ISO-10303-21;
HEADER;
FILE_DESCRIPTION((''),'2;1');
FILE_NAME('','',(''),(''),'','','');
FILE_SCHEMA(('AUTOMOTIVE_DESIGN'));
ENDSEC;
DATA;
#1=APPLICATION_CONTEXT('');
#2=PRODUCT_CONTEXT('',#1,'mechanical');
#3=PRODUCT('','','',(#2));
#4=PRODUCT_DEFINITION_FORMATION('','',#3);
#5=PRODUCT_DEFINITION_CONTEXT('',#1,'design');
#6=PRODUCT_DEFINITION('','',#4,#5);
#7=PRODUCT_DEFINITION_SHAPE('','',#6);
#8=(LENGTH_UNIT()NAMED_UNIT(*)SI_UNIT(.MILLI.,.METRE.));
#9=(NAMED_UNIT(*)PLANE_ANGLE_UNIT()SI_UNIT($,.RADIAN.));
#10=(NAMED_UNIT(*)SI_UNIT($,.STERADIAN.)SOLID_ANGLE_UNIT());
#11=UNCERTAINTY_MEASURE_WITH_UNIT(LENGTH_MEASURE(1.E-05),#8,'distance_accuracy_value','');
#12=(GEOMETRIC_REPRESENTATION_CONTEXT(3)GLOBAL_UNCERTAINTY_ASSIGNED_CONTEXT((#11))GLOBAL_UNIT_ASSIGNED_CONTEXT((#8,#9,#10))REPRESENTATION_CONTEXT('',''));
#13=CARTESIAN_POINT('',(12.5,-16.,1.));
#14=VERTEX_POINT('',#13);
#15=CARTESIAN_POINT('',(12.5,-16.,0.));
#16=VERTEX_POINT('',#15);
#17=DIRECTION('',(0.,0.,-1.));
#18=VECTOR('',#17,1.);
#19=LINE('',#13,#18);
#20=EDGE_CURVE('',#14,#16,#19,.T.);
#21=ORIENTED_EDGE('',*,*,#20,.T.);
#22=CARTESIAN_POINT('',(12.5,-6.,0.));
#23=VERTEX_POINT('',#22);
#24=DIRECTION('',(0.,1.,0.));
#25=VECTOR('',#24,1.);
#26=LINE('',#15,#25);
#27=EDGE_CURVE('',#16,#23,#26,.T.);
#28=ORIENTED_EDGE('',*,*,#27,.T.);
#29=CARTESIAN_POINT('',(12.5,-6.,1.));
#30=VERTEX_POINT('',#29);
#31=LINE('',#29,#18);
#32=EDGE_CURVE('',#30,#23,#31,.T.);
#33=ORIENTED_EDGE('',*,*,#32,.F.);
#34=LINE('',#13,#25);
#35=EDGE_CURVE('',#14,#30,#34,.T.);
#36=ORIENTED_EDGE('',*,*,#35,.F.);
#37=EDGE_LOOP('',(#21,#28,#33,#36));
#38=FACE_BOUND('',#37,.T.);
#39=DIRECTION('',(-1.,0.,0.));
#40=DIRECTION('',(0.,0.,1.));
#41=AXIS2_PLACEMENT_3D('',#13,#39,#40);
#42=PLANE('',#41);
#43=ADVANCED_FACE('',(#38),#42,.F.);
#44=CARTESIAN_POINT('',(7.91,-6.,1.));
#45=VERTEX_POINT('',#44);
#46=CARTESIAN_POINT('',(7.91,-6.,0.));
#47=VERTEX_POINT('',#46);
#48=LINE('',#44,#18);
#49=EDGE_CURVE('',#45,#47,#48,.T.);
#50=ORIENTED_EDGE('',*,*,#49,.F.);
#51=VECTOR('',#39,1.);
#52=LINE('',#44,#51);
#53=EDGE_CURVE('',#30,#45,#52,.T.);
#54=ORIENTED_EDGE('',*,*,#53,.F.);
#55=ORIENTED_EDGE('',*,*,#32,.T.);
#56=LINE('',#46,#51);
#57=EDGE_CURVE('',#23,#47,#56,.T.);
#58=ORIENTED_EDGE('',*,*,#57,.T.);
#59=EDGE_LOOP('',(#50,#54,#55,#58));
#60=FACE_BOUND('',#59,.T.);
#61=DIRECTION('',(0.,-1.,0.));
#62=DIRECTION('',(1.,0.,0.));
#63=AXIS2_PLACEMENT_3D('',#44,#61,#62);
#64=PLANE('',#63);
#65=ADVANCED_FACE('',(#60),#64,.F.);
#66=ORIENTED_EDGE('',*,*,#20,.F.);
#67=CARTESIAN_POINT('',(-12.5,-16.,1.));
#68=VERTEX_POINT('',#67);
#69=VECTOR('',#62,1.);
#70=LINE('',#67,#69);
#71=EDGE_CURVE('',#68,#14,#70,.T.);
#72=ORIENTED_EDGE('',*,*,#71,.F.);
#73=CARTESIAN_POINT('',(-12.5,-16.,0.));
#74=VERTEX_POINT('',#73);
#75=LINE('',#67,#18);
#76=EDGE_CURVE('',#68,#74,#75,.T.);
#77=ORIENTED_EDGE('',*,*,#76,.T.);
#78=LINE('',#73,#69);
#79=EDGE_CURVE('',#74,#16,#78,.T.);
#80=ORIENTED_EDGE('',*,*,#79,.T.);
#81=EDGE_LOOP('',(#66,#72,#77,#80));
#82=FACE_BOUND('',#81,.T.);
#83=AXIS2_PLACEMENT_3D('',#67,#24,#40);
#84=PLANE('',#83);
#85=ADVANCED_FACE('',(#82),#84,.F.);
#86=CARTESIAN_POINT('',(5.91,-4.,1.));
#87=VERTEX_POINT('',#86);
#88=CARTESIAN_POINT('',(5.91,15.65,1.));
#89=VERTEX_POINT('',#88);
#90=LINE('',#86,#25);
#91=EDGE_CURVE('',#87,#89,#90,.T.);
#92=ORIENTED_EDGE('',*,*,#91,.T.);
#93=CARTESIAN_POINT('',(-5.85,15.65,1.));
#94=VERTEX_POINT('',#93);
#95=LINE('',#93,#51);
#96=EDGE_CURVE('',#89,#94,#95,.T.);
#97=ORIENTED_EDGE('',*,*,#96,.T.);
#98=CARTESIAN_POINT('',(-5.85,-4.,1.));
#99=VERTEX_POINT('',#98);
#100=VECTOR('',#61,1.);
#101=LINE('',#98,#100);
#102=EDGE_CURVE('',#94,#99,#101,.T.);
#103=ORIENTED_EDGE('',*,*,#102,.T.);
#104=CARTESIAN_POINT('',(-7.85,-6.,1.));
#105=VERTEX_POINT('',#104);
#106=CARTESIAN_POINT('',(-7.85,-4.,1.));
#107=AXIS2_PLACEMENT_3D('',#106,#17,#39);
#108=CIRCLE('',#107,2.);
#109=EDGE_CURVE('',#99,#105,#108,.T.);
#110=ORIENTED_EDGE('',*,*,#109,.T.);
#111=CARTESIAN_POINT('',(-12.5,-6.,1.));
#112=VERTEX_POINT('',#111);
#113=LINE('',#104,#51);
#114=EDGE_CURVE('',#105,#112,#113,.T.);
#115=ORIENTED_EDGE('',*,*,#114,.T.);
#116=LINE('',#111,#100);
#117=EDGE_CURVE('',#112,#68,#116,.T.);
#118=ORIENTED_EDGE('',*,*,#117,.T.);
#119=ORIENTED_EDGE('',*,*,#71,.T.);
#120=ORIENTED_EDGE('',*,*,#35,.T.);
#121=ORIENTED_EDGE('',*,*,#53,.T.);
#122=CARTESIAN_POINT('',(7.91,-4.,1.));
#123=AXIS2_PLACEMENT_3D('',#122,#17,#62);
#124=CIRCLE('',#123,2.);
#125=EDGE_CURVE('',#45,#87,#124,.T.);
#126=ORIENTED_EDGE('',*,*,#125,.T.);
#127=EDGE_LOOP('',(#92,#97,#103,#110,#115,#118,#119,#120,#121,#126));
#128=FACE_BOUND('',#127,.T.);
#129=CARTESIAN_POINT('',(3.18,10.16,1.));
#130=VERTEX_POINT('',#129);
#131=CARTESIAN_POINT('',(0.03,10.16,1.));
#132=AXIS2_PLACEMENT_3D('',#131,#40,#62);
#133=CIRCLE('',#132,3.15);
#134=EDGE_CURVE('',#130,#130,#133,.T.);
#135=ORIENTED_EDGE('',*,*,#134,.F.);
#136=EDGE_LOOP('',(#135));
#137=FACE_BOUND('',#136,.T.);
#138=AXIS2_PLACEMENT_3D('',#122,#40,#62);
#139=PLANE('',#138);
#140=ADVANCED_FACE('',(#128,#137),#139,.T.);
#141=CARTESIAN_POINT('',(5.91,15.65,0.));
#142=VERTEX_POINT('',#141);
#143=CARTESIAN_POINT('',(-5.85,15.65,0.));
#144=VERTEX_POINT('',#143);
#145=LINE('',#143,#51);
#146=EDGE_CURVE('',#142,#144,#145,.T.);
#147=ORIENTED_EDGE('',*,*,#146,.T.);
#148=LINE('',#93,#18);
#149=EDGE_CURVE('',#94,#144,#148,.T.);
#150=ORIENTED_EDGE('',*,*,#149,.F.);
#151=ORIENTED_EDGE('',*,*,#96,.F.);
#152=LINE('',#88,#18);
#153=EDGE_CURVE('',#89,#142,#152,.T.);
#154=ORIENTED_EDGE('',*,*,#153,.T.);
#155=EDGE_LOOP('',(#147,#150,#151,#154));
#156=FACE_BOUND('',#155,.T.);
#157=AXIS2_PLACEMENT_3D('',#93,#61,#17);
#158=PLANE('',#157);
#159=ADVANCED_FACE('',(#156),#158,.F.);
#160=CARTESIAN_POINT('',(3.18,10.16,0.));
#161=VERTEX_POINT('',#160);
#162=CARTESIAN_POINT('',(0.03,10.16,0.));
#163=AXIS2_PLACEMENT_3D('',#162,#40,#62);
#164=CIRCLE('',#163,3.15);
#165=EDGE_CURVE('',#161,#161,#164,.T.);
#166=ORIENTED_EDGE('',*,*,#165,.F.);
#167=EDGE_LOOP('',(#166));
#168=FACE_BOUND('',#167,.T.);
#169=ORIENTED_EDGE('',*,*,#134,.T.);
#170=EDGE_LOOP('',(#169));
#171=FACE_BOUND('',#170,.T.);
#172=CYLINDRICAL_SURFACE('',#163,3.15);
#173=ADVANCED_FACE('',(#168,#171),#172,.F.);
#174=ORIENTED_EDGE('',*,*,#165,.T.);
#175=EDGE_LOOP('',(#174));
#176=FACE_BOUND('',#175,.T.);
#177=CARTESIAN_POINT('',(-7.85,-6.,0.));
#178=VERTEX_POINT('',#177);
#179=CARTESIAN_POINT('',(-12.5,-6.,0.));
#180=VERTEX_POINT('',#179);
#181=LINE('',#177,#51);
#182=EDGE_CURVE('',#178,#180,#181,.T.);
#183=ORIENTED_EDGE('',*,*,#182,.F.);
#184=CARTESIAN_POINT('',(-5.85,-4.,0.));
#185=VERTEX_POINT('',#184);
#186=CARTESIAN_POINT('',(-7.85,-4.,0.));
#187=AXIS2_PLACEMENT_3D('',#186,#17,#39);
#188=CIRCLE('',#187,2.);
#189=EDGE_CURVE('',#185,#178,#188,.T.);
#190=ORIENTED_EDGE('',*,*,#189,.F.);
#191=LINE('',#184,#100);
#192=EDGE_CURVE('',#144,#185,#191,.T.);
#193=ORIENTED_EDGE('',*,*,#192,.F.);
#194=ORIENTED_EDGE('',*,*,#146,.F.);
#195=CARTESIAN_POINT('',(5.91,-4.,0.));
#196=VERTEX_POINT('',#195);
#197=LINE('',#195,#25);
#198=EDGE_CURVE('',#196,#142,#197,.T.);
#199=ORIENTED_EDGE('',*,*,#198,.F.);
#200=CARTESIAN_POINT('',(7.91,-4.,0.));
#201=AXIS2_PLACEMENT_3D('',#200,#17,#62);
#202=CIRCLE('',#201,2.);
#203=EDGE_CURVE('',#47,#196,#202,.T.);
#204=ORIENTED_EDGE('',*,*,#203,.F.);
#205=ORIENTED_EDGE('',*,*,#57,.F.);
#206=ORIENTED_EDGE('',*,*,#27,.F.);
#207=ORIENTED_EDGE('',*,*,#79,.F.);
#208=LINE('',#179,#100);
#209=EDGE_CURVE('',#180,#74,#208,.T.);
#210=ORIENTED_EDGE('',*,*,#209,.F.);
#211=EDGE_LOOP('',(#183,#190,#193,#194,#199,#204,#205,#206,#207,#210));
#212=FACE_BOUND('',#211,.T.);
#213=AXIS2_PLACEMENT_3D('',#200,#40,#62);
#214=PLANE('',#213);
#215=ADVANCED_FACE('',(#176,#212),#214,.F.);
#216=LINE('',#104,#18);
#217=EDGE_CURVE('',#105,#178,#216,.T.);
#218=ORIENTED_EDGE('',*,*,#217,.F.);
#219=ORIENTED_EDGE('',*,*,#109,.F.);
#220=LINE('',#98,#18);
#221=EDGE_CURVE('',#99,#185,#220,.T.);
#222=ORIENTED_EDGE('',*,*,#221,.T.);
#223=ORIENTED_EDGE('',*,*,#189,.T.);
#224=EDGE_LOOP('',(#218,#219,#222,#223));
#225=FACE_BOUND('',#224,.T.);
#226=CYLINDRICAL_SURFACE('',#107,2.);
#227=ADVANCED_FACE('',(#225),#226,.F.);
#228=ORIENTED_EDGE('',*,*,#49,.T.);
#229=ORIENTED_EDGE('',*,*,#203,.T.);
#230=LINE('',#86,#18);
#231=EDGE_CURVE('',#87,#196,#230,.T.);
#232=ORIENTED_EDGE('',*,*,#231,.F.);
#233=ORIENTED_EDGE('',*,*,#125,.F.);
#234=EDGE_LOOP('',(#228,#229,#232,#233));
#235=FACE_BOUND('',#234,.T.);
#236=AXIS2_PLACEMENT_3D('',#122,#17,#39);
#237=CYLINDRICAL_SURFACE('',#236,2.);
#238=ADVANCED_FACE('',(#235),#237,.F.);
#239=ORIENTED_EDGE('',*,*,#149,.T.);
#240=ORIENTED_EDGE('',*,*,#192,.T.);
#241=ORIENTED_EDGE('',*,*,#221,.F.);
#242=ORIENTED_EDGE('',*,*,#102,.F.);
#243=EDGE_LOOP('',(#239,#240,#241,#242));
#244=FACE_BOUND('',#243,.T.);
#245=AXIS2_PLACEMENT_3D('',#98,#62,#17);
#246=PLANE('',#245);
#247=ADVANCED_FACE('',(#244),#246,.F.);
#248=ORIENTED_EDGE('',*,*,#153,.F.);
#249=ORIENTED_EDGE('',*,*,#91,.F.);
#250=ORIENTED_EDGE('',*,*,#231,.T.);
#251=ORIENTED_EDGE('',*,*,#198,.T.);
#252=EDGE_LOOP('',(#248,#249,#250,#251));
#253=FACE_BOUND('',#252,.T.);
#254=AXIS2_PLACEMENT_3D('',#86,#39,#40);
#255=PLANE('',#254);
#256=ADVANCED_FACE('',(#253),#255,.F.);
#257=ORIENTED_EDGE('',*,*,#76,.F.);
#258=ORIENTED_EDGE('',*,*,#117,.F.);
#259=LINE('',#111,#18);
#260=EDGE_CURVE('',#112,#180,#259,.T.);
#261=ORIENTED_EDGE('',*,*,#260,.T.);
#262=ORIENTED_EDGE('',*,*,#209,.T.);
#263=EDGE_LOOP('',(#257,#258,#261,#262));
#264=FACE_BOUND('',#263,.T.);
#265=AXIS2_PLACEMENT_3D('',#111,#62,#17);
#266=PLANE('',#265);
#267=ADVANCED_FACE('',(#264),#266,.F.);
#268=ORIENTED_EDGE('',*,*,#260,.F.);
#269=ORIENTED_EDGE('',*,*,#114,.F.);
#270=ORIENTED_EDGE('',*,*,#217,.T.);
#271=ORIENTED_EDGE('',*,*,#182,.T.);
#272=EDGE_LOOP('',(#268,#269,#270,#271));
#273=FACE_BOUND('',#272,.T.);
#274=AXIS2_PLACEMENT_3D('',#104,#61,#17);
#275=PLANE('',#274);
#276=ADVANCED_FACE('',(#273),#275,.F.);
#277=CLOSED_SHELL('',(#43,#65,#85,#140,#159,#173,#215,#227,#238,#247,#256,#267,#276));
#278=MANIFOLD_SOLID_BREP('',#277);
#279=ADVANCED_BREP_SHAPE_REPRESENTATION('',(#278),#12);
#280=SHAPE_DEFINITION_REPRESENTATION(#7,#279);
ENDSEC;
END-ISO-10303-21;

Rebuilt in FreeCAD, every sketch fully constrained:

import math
import FreeCAD as App
import Part
import Sketcher
from FreeCAD import Vector
Q = App.Units.Quantity

doc = App.newDocument("Part")
params = doc.addObject("Spreadsheet::Sheet", "Params")
for row, (alias, value) in enumerate([
    ("sketch1_radius", "2 mm"),
    ("sketch1_width", "25 mm"),
    ("sketch1_height", "10 mm"),
    ("sketch1_width2", "4.59 mm"),
    ("sketch1_width3", "11.76 mm"),
    ("pad1_length", "1 mm"),
    ("sketch2_diameter", "6.3 mm"),
    ("pocket1_length", "1 mm"),
], start=1):
    params.set(f"A{row}", alias)
    params.set(f"B{row}", "=" + value)
    params.setAlias(f"B{row}", alias)

body = doc.addObject("PartDesign::Body", "Body")

sketch1 = body.newObject("Sketcher::SketchObject", "Sketch")
sketch1.AttachmentSupport = (doc.getObject("XY_Plane"), [""])
sketch1.MapMode = "FlatFace"
sketch1.addGeometry(Part.LineSegment(Vector(-12.5, -6, 0), Vector(-12.5, -16, 0)), False)
sketch1.addGeometry(Part.LineSegment(Vector(-12.5, -16, 0), Vector(12.5, -16, 0)), False)
sketch1.addGeometry(Part.LineSegment(Vector(12.5, -16, 0), Vector(12.5, -6, 0)), False)
sketch1.addGeometry(Part.LineSegment(Vector(12.5, -6, 0), Vector(7.9, -6, 0)), False)
sketch1.addGeometry(Part.ArcOfCircle(Part.Circle(Vector(7.9, -4, 0), Vector(0, 0, 1), 2), math.radians(-180), math.radians(-90)), False)
sketch1.addGeometry(Part.LineSegment(Vector(5.9, -4, 0), Vector(5.9, 15.7, 0)), False)
sketch1.addGeometry(Part.LineSegment(Vector(5.9, 15.7, 0), Vector(-5.8, 15.7, 0)), False)
sketch1.addGeometry(Part.LineSegment(Vector(-5.8, 15.7, 0), Vector(-5.8, -4, 0)), False)
sketch1.addGeometry(Part.ArcOfCircle(Part.Circle(Vector(-7.9, -4, 0), Vector(0, 0, 1), 2), math.radians(-90), math.radians(0)), False)
sketch1.addGeometry(Part.LineSegment(Vector(-7.8, -6, 0), Vector(-12.5, -6, 0)), False)
sketch1.addConstraint(Sketcher.Constraint("Coincident", 0, 2, 1, 1))
sketch1.addConstraint(Sketcher.Constraint("Coincident", 1, 2, 2, 1))
sketch1.addConstraint(Sketcher.Constraint("Coincident", 2, 2, 3, 1))
sketch1.addConstraint(Sketcher.Constraint("Tangent", 3, 2, 4, 2))
sketch1.addConstraint(Sketcher.Constraint("Tangent", 4, 1, 5, 1))
sketch1.addConstraint(Sketcher.Constraint("Coincident", 5, 2, 6, 1))
sketch1.addConstraint(Sketcher.Constraint("Coincident", 6, 2, 7, 1))
sketch1.addConstraint(Sketcher.Constraint("Tangent", 7, 2, 8, 2))
sketch1.addConstraint(Sketcher.Constraint("Tangent", 8, 1, 9, 1))
sketch1.addConstraint(Sketcher.Constraint("Coincident", 9, 2, 0, 1))
sketch1.addConstraint(Sketcher.Constraint("Vertical", 0))
sketch1.addConstraint(Sketcher.Constraint("Horizontal", 1))
sketch1.addConstraint(Sketcher.Constraint("Vertical", 2))
sketch1.addConstraint(Sketcher.Constraint("Horizontal", 3))
sketch1.addConstraint(Sketcher.Constraint("Vertical", 5))
sketch1.addConstraint(Sketcher.Constraint("Horizontal", 6))
sketch1.addConstraint(Sketcher.Constraint("Vertical", 7))
sketch1.addConstraint(Sketcher.Constraint("Horizontal", 9))
sketch1.addConstraint(Sketcher.Constraint("Equal", 4, 8))
sketch1.addConstraint(Sketcher.Constraint("Symmetric", 2, 2, 9, 2, -2))
sketch1.addConstraint(Sketcher.Constraint("Radius", 4, Q("2 mm")))
sketch1.addConstraint(Sketcher.Constraint("DistanceX", 1, 1, 1, 2, Q("25 mm")))
sketch1.addConstraint(Sketcher.Constraint("DistanceY", 0, 2, 0, 1, Q("10 mm")))
sketch1.addConstraint(Sketcher.Constraint("DistanceY", 4, 3, -1, 1, Q("4 mm")))
sketch1.addConstraint(Sketcher.Constraint("DistanceX", 3, 2, 3, 1, Q("4.59 mm")))
sketch1.addConstraint(Sketcher.Constraint("DistanceX", 6, 2, 6, 1, Q("11.76 mm")))
sketch1.addConstraint(Sketcher.Constraint("DistanceY", 5, 1, 5, 2, Q("19.65 mm")))
sketch1.setExpression("Constraints[20]", "Params.sketch1_radius")
sketch1.setExpression("Constraints[21]", "Params.sketch1_width")
sketch1.setExpression("Constraints[22]", "Params.sketch1_height")
sketch1.setExpression("Constraints[24]", "Params.sketch1_width2")
sketch1.setExpression("Constraints[25]", "Params.sketch1_width3")
pad1 = body.newObject("PartDesign::Pad", "Pad")
pad1.Profile = sketch1
pad1.setExpression("Length", "Params.pad1_length")

sketch2 = body.newObject("Sketcher::SketchObject", "Sketch001")
sketch2.AttachmentSupport = (doc.getObject("XY_Plane"), [""])
sketch2.MapMode = "FlatFace"
sketch2.AttachmentOffset = App.Placement(Vector(0, 0, 1), App.Rotation())
sketch2.addGeometry(Part.Circle(Vector(0, 10.2, 0), Vector(0, 0, 1), 3.1), False)
sketch2.addConstraint(Sketcher.Constraint("Diameter", 0, Q("6.3 mm")))
sketch2.addConstraint(Sketcher.Constraint("DistanceX", -1, 1, 0, 3, Q("0.03 mm")))
sketch2.addConstraint(Sketcher.Constraint("DistanceY", -1, 1, 0, 3, Q("10.16 mm")))
sketch2.setExpression("Constraints[0]", "Params.sketch2_diameter")
pocket1 = body.newObject("PartDesign::Pocket", "Pocket")
pocket1.Profile = sketch2
pocket1.setExpression("Length", "Params.pocket1_length")

doc.recompute()
